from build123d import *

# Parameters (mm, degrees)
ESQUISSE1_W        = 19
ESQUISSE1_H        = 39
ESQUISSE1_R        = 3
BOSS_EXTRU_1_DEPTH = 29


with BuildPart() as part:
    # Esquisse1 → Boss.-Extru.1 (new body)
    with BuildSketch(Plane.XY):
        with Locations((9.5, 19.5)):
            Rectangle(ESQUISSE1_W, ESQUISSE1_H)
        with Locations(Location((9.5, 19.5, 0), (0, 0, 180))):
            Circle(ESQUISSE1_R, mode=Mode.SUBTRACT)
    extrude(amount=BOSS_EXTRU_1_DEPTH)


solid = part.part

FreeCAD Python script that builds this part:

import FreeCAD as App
import Part
import Sketcher

doc = App.newDocument("Part")
body = doc.addObject("PartDesign::Body", "Body")

sketch1 = body.newObject("Sketcher::SketchObject", "Sketch")
sketch1.AttachmentSupport = (doc.getObject("XY_Plane"), [""])
sketch1.MapMode = "FlatFace"
sketch1.addGeometry([
    Part.LineSegment(App.Vector(0, 39, 0), App.Vector(0, 0, 0)),
    Part.LineSegment(App.Vector(0, 0, 0), App.Vector(19, 0, 0)),
    Part.LineSegment(App.Vector(19, 0, 0), App.Vector(19, 39, 0)),
    Part.LineSegment(App.Vector(19, 39, 0), App.Vector(0, 39, 0)),
    Part.Circle(App.Vector(9.5, 19.5, 0), App.Vector(0, 0, 1), 3),
], False)
sketch1.addConstraint([
    Sketcher.Constraint("Coincident", 0, 2, 1, 1),
    Sketcher.Constraint("Coincident", 1, 2, 2, 1),
    Sketcher.Constraint("Coincident", 2, 2, 3, 1),
    Sketcher.Constraint("Coincident", 3, 2, 0, 1),
    Sketcher.Constraint("Vertical", 0),
    Sketcher.Constraint("Horizontal", 1),
    Sketcher.Constraint("Vertical", 2),
    Sketcher.Constraint("Horizontal", 3),
    Sketcher.Constraint("Coincident", 0, 2, -1, 1),
    Sketcher.Constraint("Diameter", 4, 6.0),
    Sketcher.Constraint("DistanceX", 1, 1, 1, 2, 19.0),
    Sketcher.Constraint("DistanceY", 0, 2, 0, 1, 39.0),
    Sketcher.Constraint("DistanceX", -1, 1, 4, 3, 9.5),
    Sketcher.Constraint("DistanceY", -1, 1, 4, 3, 19.5),
])
pad1 = body.newObject("PartDesign::Pad", "Pad")
pad1.Profile = sketch1
pad1.Length = 29

doc.recompute()
